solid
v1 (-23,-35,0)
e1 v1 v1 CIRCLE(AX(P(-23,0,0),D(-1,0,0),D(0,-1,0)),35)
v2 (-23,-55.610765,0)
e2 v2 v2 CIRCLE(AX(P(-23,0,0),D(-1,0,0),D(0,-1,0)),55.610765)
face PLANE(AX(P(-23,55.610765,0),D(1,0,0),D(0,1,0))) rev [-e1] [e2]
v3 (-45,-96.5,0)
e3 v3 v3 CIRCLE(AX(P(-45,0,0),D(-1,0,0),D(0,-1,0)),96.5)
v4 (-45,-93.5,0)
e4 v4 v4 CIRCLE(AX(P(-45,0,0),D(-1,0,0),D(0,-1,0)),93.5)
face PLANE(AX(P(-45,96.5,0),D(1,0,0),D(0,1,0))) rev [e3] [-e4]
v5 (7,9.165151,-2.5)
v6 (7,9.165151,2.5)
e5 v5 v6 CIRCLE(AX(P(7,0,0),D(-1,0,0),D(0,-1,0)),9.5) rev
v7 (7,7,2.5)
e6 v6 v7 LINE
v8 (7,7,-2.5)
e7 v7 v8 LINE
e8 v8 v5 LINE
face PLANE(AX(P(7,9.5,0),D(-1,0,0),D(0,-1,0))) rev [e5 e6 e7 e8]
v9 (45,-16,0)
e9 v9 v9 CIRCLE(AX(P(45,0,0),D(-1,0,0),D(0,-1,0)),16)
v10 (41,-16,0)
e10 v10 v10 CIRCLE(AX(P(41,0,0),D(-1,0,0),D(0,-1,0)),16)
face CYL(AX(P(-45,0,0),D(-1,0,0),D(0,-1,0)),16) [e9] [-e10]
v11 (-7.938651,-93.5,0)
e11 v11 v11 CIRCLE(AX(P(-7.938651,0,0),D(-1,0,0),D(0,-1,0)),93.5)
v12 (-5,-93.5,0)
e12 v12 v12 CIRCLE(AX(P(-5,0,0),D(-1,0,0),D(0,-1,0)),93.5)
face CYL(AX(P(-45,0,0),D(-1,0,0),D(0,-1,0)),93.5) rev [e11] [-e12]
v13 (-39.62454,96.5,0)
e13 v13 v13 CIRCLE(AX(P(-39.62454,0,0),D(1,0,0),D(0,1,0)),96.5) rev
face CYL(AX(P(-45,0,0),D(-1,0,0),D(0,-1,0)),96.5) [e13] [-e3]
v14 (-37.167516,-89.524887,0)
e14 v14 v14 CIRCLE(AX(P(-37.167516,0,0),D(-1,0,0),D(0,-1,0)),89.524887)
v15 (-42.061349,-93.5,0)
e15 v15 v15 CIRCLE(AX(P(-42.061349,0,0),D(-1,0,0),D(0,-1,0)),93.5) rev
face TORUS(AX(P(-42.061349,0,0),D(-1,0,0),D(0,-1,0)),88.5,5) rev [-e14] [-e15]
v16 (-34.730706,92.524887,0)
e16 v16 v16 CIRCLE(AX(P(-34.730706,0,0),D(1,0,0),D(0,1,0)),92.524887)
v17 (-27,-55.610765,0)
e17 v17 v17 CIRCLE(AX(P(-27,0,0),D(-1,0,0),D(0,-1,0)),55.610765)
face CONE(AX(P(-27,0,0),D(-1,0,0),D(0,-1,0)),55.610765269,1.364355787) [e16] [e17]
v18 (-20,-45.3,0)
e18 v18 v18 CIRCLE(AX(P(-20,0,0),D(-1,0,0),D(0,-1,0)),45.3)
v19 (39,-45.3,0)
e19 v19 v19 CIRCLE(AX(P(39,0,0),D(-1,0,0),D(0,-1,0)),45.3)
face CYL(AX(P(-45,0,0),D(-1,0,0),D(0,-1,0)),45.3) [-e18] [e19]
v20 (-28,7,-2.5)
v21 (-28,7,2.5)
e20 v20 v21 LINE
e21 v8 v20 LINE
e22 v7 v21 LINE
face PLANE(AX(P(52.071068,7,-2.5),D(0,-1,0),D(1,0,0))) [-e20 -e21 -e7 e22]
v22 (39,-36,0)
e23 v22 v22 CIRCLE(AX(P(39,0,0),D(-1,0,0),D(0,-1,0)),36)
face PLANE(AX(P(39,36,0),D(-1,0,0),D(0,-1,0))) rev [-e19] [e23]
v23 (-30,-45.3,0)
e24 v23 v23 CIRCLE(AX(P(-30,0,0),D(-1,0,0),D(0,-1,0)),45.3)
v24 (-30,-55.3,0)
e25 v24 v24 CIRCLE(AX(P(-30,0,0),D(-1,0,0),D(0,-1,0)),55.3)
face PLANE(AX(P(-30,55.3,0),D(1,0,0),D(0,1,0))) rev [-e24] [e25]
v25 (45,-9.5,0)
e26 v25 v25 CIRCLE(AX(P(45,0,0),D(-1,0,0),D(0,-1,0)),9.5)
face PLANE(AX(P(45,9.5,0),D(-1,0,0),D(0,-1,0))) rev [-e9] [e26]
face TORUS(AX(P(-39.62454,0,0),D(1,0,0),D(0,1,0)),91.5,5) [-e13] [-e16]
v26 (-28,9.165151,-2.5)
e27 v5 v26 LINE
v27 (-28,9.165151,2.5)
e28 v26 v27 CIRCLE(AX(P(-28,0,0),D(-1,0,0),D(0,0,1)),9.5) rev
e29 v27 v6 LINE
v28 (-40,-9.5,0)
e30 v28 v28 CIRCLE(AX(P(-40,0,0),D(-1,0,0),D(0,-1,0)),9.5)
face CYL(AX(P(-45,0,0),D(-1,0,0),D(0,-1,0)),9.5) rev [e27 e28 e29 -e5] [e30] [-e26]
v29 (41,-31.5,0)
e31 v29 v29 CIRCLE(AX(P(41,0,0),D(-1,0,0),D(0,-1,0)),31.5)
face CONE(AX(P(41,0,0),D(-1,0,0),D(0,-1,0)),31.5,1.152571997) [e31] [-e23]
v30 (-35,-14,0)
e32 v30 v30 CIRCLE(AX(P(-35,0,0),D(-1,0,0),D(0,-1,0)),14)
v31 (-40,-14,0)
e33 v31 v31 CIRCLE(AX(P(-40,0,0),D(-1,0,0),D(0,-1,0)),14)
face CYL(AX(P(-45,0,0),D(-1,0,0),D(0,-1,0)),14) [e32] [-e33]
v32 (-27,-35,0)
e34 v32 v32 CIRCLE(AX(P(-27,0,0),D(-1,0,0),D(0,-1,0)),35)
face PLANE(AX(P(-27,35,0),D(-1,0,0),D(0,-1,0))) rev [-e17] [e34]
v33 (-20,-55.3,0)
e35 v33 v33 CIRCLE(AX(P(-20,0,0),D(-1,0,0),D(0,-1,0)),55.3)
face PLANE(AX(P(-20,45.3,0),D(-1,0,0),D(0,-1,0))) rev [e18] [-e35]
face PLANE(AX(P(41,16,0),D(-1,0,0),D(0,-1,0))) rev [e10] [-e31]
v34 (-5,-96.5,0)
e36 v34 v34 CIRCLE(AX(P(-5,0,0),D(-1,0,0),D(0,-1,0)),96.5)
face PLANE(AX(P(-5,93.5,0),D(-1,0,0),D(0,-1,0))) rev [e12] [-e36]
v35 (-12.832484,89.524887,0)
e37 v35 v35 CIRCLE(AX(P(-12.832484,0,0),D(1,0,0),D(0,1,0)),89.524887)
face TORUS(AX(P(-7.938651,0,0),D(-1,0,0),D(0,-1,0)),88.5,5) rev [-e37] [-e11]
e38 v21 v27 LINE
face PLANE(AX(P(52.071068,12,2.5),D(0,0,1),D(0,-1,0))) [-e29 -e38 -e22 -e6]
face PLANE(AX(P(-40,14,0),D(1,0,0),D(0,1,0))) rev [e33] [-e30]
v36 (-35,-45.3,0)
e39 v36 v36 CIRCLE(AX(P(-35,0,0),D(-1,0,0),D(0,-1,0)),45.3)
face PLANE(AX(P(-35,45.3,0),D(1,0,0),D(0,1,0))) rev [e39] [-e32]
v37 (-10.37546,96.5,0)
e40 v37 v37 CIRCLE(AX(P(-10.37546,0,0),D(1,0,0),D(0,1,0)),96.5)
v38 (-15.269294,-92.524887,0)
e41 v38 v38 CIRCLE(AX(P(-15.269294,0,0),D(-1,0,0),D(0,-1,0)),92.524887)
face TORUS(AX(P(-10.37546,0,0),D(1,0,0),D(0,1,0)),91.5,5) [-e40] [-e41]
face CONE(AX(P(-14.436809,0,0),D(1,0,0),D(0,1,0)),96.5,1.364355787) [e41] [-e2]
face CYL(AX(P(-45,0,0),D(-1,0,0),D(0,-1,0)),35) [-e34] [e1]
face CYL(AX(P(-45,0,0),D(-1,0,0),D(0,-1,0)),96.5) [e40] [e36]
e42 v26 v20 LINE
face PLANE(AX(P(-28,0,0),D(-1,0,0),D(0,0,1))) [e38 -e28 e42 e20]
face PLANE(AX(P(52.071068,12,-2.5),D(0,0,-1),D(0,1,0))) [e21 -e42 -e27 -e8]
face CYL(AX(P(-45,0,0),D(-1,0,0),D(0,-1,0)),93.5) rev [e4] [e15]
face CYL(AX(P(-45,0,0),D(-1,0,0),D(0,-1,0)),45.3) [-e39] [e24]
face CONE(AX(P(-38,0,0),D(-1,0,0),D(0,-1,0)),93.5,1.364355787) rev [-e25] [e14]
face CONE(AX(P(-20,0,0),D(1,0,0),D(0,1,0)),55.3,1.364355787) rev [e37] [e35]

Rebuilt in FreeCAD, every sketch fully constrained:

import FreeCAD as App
import Part
import Sketcher


def edges_at(feature, points):
    """Names of the edges that pass closest to the given points."""
    edges = feature.Shape.Edges
    near = lambda p: min(range(len(edges)), key=lambda i: edges[i].distToShape(Part.Vertex(*p))[0])
    return sorted({f"Edge{near(p) + 1}" for p in points})


def add_polygon(sketch, points):
    """Adds a closed chain of lines whose ends are joined by coincident constraints."""
    first, n = sketch.GeometryCount, len(points)
    for a, b in zip(points, points[1:] + points[:1]):
        sketch.addGeometry(Part.LineSegment(App.Vector(*a, 0), App.Vector(*b, 0)), False)
    for i in range(n):
        sketch.addConstraint(Sketcher.Constraint("Coincident", first + i, 2, first + (i + 1) % n, 1))

doc = App.newDocument("Part")
params = doc.addObject("Spreadsheet::Sheet", "Params")
for row, (alias, value) in enumerate([
    ("sketch1_width", "85 mm"),
    ("sketch1_width2", "4 mm"),
    ("sketch1_width3", "59 mm"),
    ("sketch1_width4", "7 mm"),
    ("sketch1_width5", "5 mm"),
    ("revolution_angle", "360 deg"),
    ("fillet_radius", "5 mm"),
    ("sketch2_width", "5 mm"),
    ("pad1_length", "35 mm"),
], start=1):
    params.set(f"A{row}", alias)
    params.set(f"B{row}", "=" + value)
    params.setAlias(f"B{row}", alias)

body = doc.addObject("PartDesign::Body", "Body")

# Sketch on XY plane
sketch1 = body.newObject("Sketcher::SketchObject", "Sketch")
sketch1.AttachmentSupport = (doc.getObject("XY_Plane"), [""])
sketch1.MapMode = "FlatFace"
add_polygon(sketch1, [(-40, 9.5), (45, 9.5), (45, 16), (41, 16), (41, 31.5), (39, 36), (39, 45.3), (-20, 45.3), (-20, 55.3), (-12, 93.5), (-5, 93.5), (-5, 96.5), (-14.436809, 96.5), (-23, 55.610765), (-23, 35), (-27, 35), (-27, 55.610765), (-35.563191, 96.5), (-45, 96.5), (-45, 93.5), (-38, 93.5), (-30, 55.3), (-30, 45.3), (-35, 45.3), (-35, 14), (-40, 14)])  # lines 0-25
sketch1.addConstraint([
    Sketcher.Constraint("Horizontal", 0),
    Sketcher.Constraint("Vertical", 1),
    Sketcher.Constraint("Horizontal", 2),
    Sketcher.Constraint("Vertical", 3),
    Sketcher.Constraint("Vertical", 5),
    Sketcher.Constraint("Horizontal", 6),
    Sketcher.Constraint("Vertical", 7),
    Sketcher.Constraint("Horizontal", 9),
    Sketcher.Constraint("Vertical", 10),
    Sketcher.Constraint("Horizontal", 11),
    Sketcher.Constraint("Vertical", 13),
    Sketcher.Constraint("Horizontal", 14),
    Sketcher.Constraint("Vertical", 15),
    Sketcher.Constraint("Horizontal", 17),
    Sketcher.Constraint("Vertical", 18),
    Sketcher.Constraint("Horizontal", 19),
    Sketcher.Constraint("Vertical", 21),
    Sketcher.Constraint("Horizontal", 22),
    Sketcher.Constraint("Vertical", 23),
    Sketcher.Constraint("Horizontal", 24),
    Sketcher.Constraint("Vertical", 25),
    Sketcher.Constraint("Parallel", 8, 12),
    Sketcher.Constraint("Parallel", 16, 20),
    Sketcher.Constraint("Horizontal", 12, 2, 15, 2),
    Sketcher.Constraint("Horizontal", 11, 2, 16, 2),
    Sketcher.Constraint("Horizontal", 9, 2, 18, 2),
    Sketcher.Constraint("Horizontal", 7, 2, 20, 2),
    Sketcher.Constraint("Horizontal", 6, 2, 21, 2),
    Sketcher.Constraint("Equal", 2, 14),
    Sketcher.Constraint("Equal", 11, 17),
    Sketcher.Constraint("Equal", 9, 19),
    Sketcher.Constraint("Equal", 22, 24),
    Sketcher.Constraint("Equal", 12, 16),
    Sketcher.Constraint("DistanceX", 0, 1, 0, 2, 85.0),
    Sketcher.Constraint("DistanceX", 2, 2, 2, 1, 4.0),
    Sketcher.Constraint("DistanceX", 6, 2, 6, 1, 59.0),
    Sketcher.Constraint("DistanceX", 9, 1, 9, 2, 7.0),
    Sketcher.Constraint("DistanceX", 22, 2, 22, 1, 5.0),
    Sketcher.Constraint("DistanceY", 7, 1, 7, 2, 10.0),
    Sketcher.Constraint("DistanceY", 10, 1, 10, 2, 3.0),
    Sketcher.Constraint("DistanceY", 1, 1, 1, 2, 6.5),
    Sketcher.Constraint("DistanceY", 3, 1, 3, 2, 15.5),
    Sketcher.Constraint("DistanceY", 5, 1, 5, 2, 9.3),
    Sketcher.Constraint("DistanceY", 23, 2, 23, 1, 31.3),
    Sketcher.Constraint("DistanceY", 25, 2, 25, 1, 4.5),
    Sketcher.Constraint("DistanceX", -1, 1, 0, 2, 45.0),
    Sketcher.Constraint("DistanceY", -1, 1, 1, 2, 16.0),
    Sketcher.Constraint("DistanceX", -1, 1, 4, 2, 39.0),
    Sketcher.Constraint("DistanceX", 8, 2, -1, 1, 12.0),
    Sketcher.Constraint("DistanceY", -1, 1, 13, 2, 35.0),
    Sketcher.Constraint("DistanceY", 3, 2, 8, 2, 62.0),
    Sketcher.Constraint("DistanceX", 11, 2, 11, 1, 9.436809),
])
sketch1.setExpression("Constraints[59]", "Params.sketch1_width")
sketch1.setExpression("Constraints[60]", "Params.sketch1_width2")
sketch1.setExpression("Constraints[61]", "Params.sketch1_width3")
sketch1.setExpression("Constraints[62]", "Params.sketch1_width4")
sketch1.setExpression("Constraints[63]", "Params.sketch1_width5")
revolution = body.newObject("PartDesign::Revolution", "Revolution")
revolution.Profile = sketch1
revolution.ReferenceAxis = (sketch1, ["H_Axis"])
revolution.setExpression("Angle", "Params.revolution_angle")
doc.recompute()

fillet = body.newObject("PartDesign::Fillet", "Fillet")
fillet.Base = (revolution, edges_at(revolution, [
    (-38, -93.5, 0),
    (-35.563, -96.5, 0),
    (-14.437, -96.5, 0),
    (-12, -93.5, 0),
]))
fillet.setExpression("Radius", "Params.fillet_radius")

# Sketch on YZ plane
sketch2 = body.newObject("Sketcher::SketchObject", "Sketch001")
sketch2.AttachmentSupport = (doc.getObject("YZ_Plane"), [""])
sketch2.MapMode = "FlatFace"
sketch2.AttachmentOffset = App.Placement(App.Vector(0, 0, -28), App.Rotation())
add_polygon(sketch2, [(12, -2.5), (7, -2.5), (7, 2.5), (12, 2.5)])  # lines 0-3
sketch2.addConstraint([
    Sketcher.Constraint("Horizontal", 0),
    Sketcher.Constraint("Vertical", 1),
    Sketcher.Constraint("Horizontal", 2),
    Sketcher.Constraint("Vertical", 3),
    Sketcher.Constraint("Equal", 2, 1),
    Sketcher.Constraint("DistanceX", 0, 2, 0, 1, 5.0),
    Sketcher.Constraint("DistanceX", -1, 1, 0, 2, 7.0),
    Sketcher.Constraint("DistanceY", 0, 2, -1, 1, 2.5),
])
sketch2.setExpression("Constraints[9]", "Params.sketch2_width")
pad1 = body.newObject("PartDesign::Pad", "Pad")
pad1.Profile = sketch2
pad1.setExpression("Length", "Params.pad1_length")

doc.recompute()
